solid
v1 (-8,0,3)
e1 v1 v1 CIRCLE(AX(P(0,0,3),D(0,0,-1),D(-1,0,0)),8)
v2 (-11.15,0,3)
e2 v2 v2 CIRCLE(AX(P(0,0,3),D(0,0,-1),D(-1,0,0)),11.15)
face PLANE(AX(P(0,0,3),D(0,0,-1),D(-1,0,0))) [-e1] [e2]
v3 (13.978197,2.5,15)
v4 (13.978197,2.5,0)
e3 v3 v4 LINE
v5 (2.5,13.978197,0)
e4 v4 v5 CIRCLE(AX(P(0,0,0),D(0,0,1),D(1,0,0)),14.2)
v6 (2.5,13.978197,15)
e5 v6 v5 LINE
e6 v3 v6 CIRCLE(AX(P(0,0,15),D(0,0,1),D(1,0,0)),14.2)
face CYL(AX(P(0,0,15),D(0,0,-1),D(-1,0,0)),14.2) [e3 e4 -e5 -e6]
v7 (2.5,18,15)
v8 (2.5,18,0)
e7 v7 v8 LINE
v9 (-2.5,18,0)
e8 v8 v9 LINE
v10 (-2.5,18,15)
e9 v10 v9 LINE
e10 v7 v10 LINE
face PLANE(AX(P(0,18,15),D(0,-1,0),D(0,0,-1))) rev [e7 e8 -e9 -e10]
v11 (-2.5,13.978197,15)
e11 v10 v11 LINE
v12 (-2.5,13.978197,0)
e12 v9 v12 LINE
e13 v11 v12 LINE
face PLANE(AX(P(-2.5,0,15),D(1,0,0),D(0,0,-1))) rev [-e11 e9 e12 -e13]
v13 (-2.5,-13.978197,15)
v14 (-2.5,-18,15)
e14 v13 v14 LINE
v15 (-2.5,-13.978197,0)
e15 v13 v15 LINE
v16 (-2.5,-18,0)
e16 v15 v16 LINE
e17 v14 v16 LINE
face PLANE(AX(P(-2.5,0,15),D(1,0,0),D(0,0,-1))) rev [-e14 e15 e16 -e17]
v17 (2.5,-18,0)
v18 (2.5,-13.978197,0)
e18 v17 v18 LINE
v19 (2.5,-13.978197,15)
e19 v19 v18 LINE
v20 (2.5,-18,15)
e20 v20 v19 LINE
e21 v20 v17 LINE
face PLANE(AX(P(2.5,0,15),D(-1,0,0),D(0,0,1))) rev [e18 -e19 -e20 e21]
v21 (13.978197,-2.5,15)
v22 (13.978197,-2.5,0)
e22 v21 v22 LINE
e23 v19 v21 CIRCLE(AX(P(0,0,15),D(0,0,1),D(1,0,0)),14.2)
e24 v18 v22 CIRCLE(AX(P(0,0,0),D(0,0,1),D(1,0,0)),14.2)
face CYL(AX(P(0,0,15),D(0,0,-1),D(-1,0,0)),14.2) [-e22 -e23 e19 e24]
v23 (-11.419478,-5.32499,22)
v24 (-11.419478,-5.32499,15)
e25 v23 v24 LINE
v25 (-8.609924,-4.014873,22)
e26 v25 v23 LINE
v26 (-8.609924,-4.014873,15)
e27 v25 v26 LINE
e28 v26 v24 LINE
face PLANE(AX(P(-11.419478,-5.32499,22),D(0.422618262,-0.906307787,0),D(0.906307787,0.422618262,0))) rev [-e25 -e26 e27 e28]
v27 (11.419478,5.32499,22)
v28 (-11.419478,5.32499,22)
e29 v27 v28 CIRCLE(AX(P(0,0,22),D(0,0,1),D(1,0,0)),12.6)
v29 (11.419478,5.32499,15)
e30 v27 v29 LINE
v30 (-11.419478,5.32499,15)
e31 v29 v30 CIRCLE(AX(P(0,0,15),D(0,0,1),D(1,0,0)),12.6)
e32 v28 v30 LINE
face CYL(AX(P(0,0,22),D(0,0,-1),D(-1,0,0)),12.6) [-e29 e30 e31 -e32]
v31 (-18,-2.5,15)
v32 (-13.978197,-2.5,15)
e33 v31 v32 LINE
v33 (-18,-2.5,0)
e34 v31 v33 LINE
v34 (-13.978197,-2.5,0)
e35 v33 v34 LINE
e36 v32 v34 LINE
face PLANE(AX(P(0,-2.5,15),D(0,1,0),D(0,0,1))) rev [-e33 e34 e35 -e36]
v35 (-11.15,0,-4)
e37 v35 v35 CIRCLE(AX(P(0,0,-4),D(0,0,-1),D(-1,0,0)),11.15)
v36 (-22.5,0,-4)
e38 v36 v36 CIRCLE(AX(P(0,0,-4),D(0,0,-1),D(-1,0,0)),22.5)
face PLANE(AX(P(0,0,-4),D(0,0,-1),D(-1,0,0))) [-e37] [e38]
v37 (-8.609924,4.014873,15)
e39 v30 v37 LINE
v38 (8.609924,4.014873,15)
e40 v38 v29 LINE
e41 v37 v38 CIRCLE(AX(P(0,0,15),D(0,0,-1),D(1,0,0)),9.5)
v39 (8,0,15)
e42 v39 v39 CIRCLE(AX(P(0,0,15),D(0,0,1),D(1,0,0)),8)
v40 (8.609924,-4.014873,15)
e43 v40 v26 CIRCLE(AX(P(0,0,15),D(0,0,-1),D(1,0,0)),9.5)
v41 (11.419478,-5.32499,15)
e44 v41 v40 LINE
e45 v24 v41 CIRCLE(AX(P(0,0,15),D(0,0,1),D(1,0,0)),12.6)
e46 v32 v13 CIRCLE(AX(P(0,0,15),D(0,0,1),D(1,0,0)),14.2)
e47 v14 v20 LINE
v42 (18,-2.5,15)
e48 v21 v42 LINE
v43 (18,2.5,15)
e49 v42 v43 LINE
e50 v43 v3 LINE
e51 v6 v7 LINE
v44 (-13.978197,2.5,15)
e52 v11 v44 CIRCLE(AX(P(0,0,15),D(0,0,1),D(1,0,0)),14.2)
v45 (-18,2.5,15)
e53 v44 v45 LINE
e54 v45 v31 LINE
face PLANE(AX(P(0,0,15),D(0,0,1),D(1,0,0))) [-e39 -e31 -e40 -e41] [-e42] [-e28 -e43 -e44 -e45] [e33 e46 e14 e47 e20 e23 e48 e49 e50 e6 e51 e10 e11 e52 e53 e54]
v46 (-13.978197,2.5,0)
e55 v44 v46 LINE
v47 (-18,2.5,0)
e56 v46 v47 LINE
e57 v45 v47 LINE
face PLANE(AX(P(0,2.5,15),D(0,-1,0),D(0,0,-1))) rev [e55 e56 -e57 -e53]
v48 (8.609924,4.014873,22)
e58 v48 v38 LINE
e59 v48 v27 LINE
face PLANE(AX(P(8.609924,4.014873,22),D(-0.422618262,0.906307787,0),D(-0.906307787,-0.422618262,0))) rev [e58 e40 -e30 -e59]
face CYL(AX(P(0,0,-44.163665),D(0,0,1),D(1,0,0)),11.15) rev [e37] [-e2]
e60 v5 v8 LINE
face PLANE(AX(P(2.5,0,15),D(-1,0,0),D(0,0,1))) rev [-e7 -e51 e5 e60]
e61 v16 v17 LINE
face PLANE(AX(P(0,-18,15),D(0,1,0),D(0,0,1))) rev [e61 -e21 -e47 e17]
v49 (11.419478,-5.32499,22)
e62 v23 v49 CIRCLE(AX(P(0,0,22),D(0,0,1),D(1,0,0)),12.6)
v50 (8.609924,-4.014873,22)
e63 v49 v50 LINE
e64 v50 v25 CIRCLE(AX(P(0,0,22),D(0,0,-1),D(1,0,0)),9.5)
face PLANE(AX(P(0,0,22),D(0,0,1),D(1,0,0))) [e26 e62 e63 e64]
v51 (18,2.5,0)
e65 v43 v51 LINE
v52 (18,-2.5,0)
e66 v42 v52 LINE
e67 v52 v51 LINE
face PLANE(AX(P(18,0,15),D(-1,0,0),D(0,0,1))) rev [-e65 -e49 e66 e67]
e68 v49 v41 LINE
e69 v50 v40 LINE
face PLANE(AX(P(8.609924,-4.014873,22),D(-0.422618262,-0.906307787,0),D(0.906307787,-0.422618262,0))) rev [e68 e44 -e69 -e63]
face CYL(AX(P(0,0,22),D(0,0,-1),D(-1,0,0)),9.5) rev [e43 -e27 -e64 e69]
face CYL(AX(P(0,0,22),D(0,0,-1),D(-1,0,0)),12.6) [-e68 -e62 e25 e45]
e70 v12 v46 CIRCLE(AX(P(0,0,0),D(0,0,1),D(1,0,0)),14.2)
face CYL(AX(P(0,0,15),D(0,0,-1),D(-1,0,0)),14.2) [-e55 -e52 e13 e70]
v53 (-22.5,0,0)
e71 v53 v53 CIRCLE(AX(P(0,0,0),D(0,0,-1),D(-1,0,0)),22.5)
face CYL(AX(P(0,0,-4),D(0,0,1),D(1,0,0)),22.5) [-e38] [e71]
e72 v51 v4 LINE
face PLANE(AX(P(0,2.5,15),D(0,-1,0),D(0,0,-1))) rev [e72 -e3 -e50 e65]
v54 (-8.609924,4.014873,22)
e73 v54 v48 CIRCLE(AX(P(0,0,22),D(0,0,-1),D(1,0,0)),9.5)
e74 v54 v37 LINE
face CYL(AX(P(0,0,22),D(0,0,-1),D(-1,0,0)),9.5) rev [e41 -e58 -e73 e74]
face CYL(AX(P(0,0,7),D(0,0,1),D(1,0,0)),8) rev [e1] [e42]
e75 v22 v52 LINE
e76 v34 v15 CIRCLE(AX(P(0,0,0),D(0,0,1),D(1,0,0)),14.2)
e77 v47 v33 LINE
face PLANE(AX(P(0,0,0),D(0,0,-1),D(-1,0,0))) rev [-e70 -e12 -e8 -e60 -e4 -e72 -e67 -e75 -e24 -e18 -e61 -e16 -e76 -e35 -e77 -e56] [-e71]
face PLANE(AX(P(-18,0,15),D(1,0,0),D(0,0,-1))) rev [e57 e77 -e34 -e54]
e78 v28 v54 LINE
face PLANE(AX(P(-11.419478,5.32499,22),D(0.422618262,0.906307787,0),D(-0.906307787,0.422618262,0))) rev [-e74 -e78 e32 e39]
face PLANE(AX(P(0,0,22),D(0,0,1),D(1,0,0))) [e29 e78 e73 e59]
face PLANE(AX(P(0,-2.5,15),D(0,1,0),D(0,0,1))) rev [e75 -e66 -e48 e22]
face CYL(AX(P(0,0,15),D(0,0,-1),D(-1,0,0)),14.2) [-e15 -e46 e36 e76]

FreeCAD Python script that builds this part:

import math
import FreeCAD as App
import Part
import Sketcher
from FreeCAD import Vector
Q = App.Units.Quantity

doc = App.newDocument("Part")
body = doc.addObject("PartDesign::Body", "Body")

sketch1 = body.newObject("Sketcher::SketchObject", "Sketch")
sketch1.AttachmentSupport = (doc.getObject("XY_Plane"), [""])
sketch1.MapMode = "FlatFace"
sketch1.addGeometry([
    Part.LineSegment(Vector(-2.5, 18, 0), Vector(-2.5, 14, 0)),
    Part.ArcOfCircle(Part.Circle(Vector(0, 0, 0), Vector(0, 0, 1), 14.2), math.radians(100), math.radians(170)),
    Part.LineSegment(Vector(-14, 2.5, 0), Vector(-18, 2.5, 0)),
    Part.LineSegment(Vector(-18, 2.5, 0), Vector(-18, -2.5, 0)),
    Part.LineSegment(Vector(-18, -2.5, 0), Vector(-14, -2.5, 0)),
    Part.ArcOfCircle(Part.Circle(Vector(0, 0, 0), Vector(0, 0, 1), 14.2), math.radians(-170), math.radians(-100)),
    Part.LineSegment(Vector(-2.5, -14, 0), Vector(-2.5, -18, 0)),
    Part.LineSegment(Vector(-2.5, -18, 0), Vector(2.5, -18, 0)),
    Part.LineSegment(Vector(2.5, -18, 0), Vector(2.5, -14, 0)),
    Part.ArcOfCircle(Part.Circle(Vector(0, 0, 0), Vector(0, 0, 1), 14.2), math.radians(-80), math.radians(-10)),
    Part.LineSegment(Vector(14, -2.5, 0), Vector(18, -2.5, 0)),
    Part.LineSegment(Vector(18, -2.5, 0), Vector(18, 2.5, 0)),
    Part.LineSegment(Vector(18, 2.5, 0), Vector(14, 2.5, 0)),
    Part.ArcOfCircle(Part.Circle(Vector(0, 0, 0), Vector(0, 0, 1), 14.2), math.radians(10), math.radians(80)),
    Part.LineSegment(Vector(2.5, 14, 0), Vector(2.5, 18, 0)),
    Part.LineSegment(Vector(2.5, 18, 0), Vector(-2.5, 18, 0)),
    Part.Circle(Vector(0, 0, 0), Vector(0, 0, 1), 11.2),
], False)
sketch1.addConstraint([
    Sketcher.Constraint("Coincident", 0, 2, 1, 1),
    Sketcher.Constraint("Coincident", 1, 2, 2, 1),
    Sketcher.Constraint("Coincident", 2, 2, 3, 1),
    Sketcher.Constraint("Coincident", 3, 2, 4, 1),
    Sketcher.Constraint("Coincident", 4, 2, 5, 1),
    Sketcher.Constraint("Coincident", 5, 2, 6, 1),
    Sketcher.Constraint("Coincident", 6, 2, 7, 1),
    Sketcher.Constraint("Coincident", 7, 2, 8, 1),
    Sketcher.Constraint("Coincident", 8, 2, 9, 1),
    Sketcher.Constraint("Coincident", 9, 2, 10, 1),
    Sketcher.Constraint("Coincident", 10, 2, 11, 1),
    Sketcher.Constraint("Coincident", 11, 2, 12, 1),
    Sketcher.Constraint("Coincident", 12, 2, 13, 1),
    Sketcher.Constraint("Coincident", 13, 2, 14, 1),
    Sketcher.Constraint("Coincident", 14, 2, 15, 1),
    Sketcher.Constraint("Coincident", 15, 2, 0, 1),
    Sketcher.Constraint("Vertical", 0),
    Sketcher.Constraint("Horizontal", 2),
    Sketcher.Constraint("Vertical", 3),
    Sketcher.Constraint("Horizontal", 4),
    Sketcher.Constraint("Vertical", 6),
    Sketcher.Constraint("Horizontal", 7),
    Sketcher.Constraint("Vertical", 8),
    Sketcher.Constraint("Horizontal", 10),
    Sketcher.Constraint("Vertical", 11),
    Sketcher.Constraint("Horizontal", 12),
    Sketcher.Constraint("Vertical", 14),
    Sketcher.Constraint("Horizontal", 15),
    Sketcher.Constraint("Coincident", 1, 3, -1, 1),
    Sketcher.Constraint("Coincident", 5, 3, -1, 1),
    Sketcher.Constraint("Coincident", 9, 3, -1, 1),
    Sketcher.Constraint("Coincident", 13, 3, -1, 1),
    Sketcher.Constraint("Coincident", 16, 3, -1, 1),
    Sketcher.Constraint("Equal", 1, 5),
    Sketcher.Constraint("Equal", 5, 9),
    Sketcher.Constraint("Equal", 9, 13),
    Sketcher.Constraint("Symmetric", 2, 2, 10, 2, -1, 1),
    Sketcher.Constraint("Symmetric", 6, 2, 14, 2, -1, 1),
    Sketcher.Constraint("Horizontal", 5, 2, 8, 2),
    Sketcher.Constraint("Horizontal", 4, 2, 9, 2),
    Sketcher.Constraint("Horizontal", 2, 2, 11, 2),
    Sketcher.Constraint("Horizontal", 0, 2, 13, 2),
    Sketcher.Constraint("Equal", 12, 0),
    Sketcher.Constraint("Equal", 15, 3),
    Sketcher.Constraint("Diameter", 16, Q("22.3 mm")),
    Sketcher.Constraint("Radius", 1, Q("14.2 mm")),
    Sketcher.Constraint("DistanceX", 7, 1, 7, 2, Q("5 mm")),
    Sketcher.Constraint("DistanceX", 2, 2, -1, 1, Q("18 mm")),
])
pad1 = body.newObject("PartDesign::Pad", "Pad")
pad1.Profile = sketch1
pad1.Length = 15

sketch2 = body.newObject("Sketcher::SketchObject", "Sketch001")
sketch2.AttachmentSupport = (doc.getObject("XY_Plane"), [""])
sketch2.MapMode = "FlatFace"
sketch2.AttachmentOffset = App.Placement(Vector(0, 0, 7), App.Rotation())
sketch2.addGeometry([
    Part.Circle(Vector(0, 0, 0), Vector(0, 0, 1), 11),
    Part.Circle(Vector(0, 0, 0), Vector(0, 0, 1), 8),
], False)
sketch2.addConstraint([
    Sketcher.Constraint("Coincident", 0, 3, -1, 1),
    Sketcher.Constraint("Coincident", 1, 3, -1, 1),
    Sketcher.Constraint("Diameter", 1, Q("16 mm")),
    Sketcher.Constraint("Diameter", 0, Q("22.3 mm")),
])
pad2 = body.newObject("PartDesign::Pad", "Pad001")
pad2.Profile = sketch2
pad2.Length = 8
body2 = doc.addObject("PartDesign::Body", "Body001")

sketch3 = body2.newObject("Sketcher::SketchObject", "Sketch002")
sketch3.AttachmentSupport = (doc.getObject("XY_Plane001"), [""])
sketch3.MapMode = "FlatFace"
sketch3.addGeometry([
    Part.Circle(Vector(0, 0, 0), Vector(0, 0, 1), 22),
    Part.ArcOfCircle(Part.Circle(Vector(0, 0, 0), Vector(0, 0, 1), 14), math.radians(10), math.radians(80)),
    Part.ArcOfCircle(Part.Circle(Vector(0, 0, 0), Vector(0, 0, 1), 14), math.radians(80), math.radians(100)),
    Part.ArcOfCircle(Part.Circle(Vector(0, 0, 0), Vector(0, 0, 1), 14), math.radians(100), math.radians(170)),
    Part.ArcOfCircle(Part.Circle(Vector(0, 0, 0), Vector(0, 0, 1), 14), math.radians(170), math.radians(190)),
    Part.ArcOfCircle(Part.Circle(Vector(0, 0, 0), Vector(0, 0, 1), 14), math.radians(-170), math.radians(-100)),
    Part.ArcOfCircle(Part.Circle(Vector(0, 0, 0), Vector(0, 0, 1), 14), math.radians(-100), math.radians(-80)),
    Part.ArcOfCircle(Part.Circle(Vector(0, 0, 0), Vector(0, 0, 1), 14), math.radians(-80), math.radians(-10)),
    Part.ArcOfCircle(Part.Circle(Vector(0, 0, 0), Vector(0, 0, 1), 14), math.radians(-10), math.radians(10)),
], False)
sketch3.addConstraint([
    Sketcher.Constraint("Tangent", 1, 2, 2, 1),
    Sketcher.Constraint("Tangent", 2, 2, 3, 1),
    Sketcher.Constraint("Tangent", 3, 2, 4, 1),
    Sketcher.Constraint("Tangent", 4, 2, 5, 1),
    Sketcher.Constraint("Tangent", 5, 2, 6, 1),
    Sketcher.Constraint("Tangent", 6, 2, 7, 1),
    Sketcher.Constraint("Tangent", 7, 2, 8, 1),
    Sketcher.Constraint("Tangent", 8, 2, 1, 1),
    Sketcher.Constraint("Coincident", 0, 3, -1, 1),
    Sketcher.Constraint("Coincident", 1, 3, -1, 1),
    Sketcher.Constraint("Coincident", 3, 3, -1, 1),
    Sketcher.Constraint("Coincident", 5, 3, -1, 1),
    Sketcher.Constraint("Equal", 5, 6),
    Sketcher.Constraint("Horizontal", 1, 2, 2, 2),
    Sketcher.Constraint("Horizontal", 5, 2, 6, 2),
    Sketcher.Constraint("Horizontal", 4, 2, 7, 2),
    Sketcher.Constraint("Horizontal", 3, 2, 8, 2),
    Sketcher.Constraint("Vertical", 3, 2, 4, 2),
    Sketcher.Constraint("Vertical", 2, 2, 5, 2),
    Sketcher.Constraint("Diameter", 0, Q("45 mm")),
    Sketcher.Constraint("Radius", 1, Q("14.2 mm")),
    Sketcher.Constraint("DistanceX", 2, 2, 1, 2, Q("5 mm")),
    Sketcher.Constraint("DistanceY", 4, 2, 3, 2, Q("5 mm")),
])
pad3 = body2.newObject("PartDesign::Pad", "Pad002")
pad3.Profile = sketch3
pad3.Length = 4
pad3.Reversed = True
doc.recompute()

boolean = body.newObject("PartDesign::Boolean", "Boolean")
boolean.Type = "Fuse"
boolean.addObjects([body2])

sketch4 = body.newObject("Sketcher::SketchObject", "Sketch003")
sketch4.AttachmentSupport = (doc.getObject("XY_Plane"), [""])
sketch4.MapMode = "FlatFace"
sketch4.AttachmentOffset = App.Placement(Vector(0, 0, -4), App.Rotation())
sketch4.addGeometry([
    Part.Circle(Vector(0, 0, 0), Vector(0, 0, 1), 14),
    Part.Circle(Vector(0, 0, 0), Vector(0, 0, 1), 11),
], False)
sketch4.addConstraint([
    Sketcher.Constraint("Coincident", 0, 3, -1, 1),
    Sketcher.Constraint("Coincident", 1, 3, -1, 1),
    Sketcher.Constraint("Diameter", 0, Q("28.4 mm")),
    Sketcher.Constraint("Diameter", 1, Q("22.3 mm")),
])
pad4 = body.newObject("PartDesign::Pad", "Pad003")
pad4.Profile = sketch4
pad4.Length = 4

sketch5 = body.newObject("Sketcher::SketchObject", "Sketch004")
sketch5.AttachmentSupport = (doc.getObject("XY_Plane"), [""])
sketch5.MapMode = "FlatFace"
sketch5.AttachmentOffset = App.Placement(Vector(0, 0, 3), App.Rotation())
sketch5.addGeometry([
    Part.Circle(Vector(0, 0, 0), Vector(0, 0, 1), 11),
    Part.Circle(Vector(0, 0, 0), Vector(0, 0, 1), 8),
], False)
sketch5.addConstraint([
    Sketcher.Constraint("Coincident", 0, 3, -1, 1),
    Sketcher.Constraint("Coincident", 1, 3, -1, 1),
    Sketcher.Constraint("Diameter", 1, Q("16 mm")),
    Sketcher.Constraint("Diameter", 0, Q("22.3 mm")),
])
pad5 = body.newObject("PartDesign::Pad", "Pad004")
pad5.Profile = sketch5
pad5.Length = 4

sketch6 = body.newObject("Sketcher::SketchObject", "Sketch005")
sketch6.AttachmentSupport = (doc.getObject("XY_Plane"), [""])
sketch6.MapMode = "FlatFace"
sketch6.AttachmentOffset = App.Placement(Vector(0, 0, 15), App.Rotation())
sketch6.addGeometry([
    Part.LineSegment(Vector(-11.4, 5.3, 0), Vector(-8.6, 4, 0)),
    Part.ArcOfCircle(Part.Circle(Vector(0, 0, 0), Vector(0, 0, 1), 9.5), math.radians(25), math.radians(155)),
    Part.LineSegment(Vector(8.6, 4, 0), Vector(11.4, 5.3, 0)),
    Part.ArcOfCircle(Part.Circle(Vector(0, 0, 0), Vector(0, 0, 1), 12.6), math.radians(25), math.radians(155)),
    Part.LineSegment(Vector(-8.6, -4, 0), Vector(-11.4, -5.3, 0)),
    Part.ArcOfCircle(Part.Circle(Vector(0, 0, 0), Vector(0, 0, 1), 12.6), math.radians(-155), math.radians(-25)),
    Part.LineSegment(Vector(11.4, -5.3, 0), Vector(8.6, -4, 0)),
    Part.ArcOfCircle(Part.Circle(Vector(0, 0, 0), Vector(0, 0, 1), 9.5), math.radians(-155), math.radians(-25)),
], False)
sketch6.addConstraint([
    Sketcher.Constraint("Coincident", 0, 2, 1, 2),
    Sketcher.Constraint("Coincident", 1, 1, 2, 1),
    Sketcher.Constraint("Coincident", 2, 2, 3, 1),
    Sketcher.Constraint("Coincident", 3, 2, 0, 1),
    Sketcher.Constraint("Coincident", 4, 2, 5, 1),
    Sketcher.Constraint("Coincident", 5, 2, 6, 1),
    Sketcher.Constraint("Coincident", 6, 2, 7, 2),
    Sketcher.Constraint("Coincident", 7, 1, 4, 1),
    Sketcher.Constraint("Coincident", 1, 3, -1, 1),
    Sketcher.Constraint("Coincident", 3, 3, -1, 1),
    Sketcher.Constraint("Coincident", 5, 3, -1, 1),
    Sketcher.Constraint("Coincident", 7, 3, -1, 1),
    Sketcher.Constraint("Equal", 3, 5),
    Sketcher.Constraint("Equal", 1, 7),
    Sketcher.Constraint("Parallel", 2, 4),
    Sketcher.Constraint("Parallel", 0, 6),
    Sketcher.Constraint("Horizontal", 0, 2, 1, 1),
    Sketcher.Constraint("Horizontal", 2, 2, 3, 2),
    Sketcher.Constraint("Horizontal", 4, 2, 5, 2),
    Sketcher.Constraint("Vertical", 3, 2, 4, 2),
    Sketcher.Constraint("Radius", 1, Q("9.5 mm")),
    Sketcher.Constraint("Radius", 3, Q("12.6 mm")),
    Sketcher.Constraint("Angle", 0, Q("-25 deg")),
    Sketcher.Constraint("DistanceX", -1, 1, 2, 2, Q("11.419478 mm")),
])
pad6 = body.newObject("PartDesign::Pad", "Pad005")
pad6.Profile = sketch6
pad6.Length = 7

doc.recompute()
